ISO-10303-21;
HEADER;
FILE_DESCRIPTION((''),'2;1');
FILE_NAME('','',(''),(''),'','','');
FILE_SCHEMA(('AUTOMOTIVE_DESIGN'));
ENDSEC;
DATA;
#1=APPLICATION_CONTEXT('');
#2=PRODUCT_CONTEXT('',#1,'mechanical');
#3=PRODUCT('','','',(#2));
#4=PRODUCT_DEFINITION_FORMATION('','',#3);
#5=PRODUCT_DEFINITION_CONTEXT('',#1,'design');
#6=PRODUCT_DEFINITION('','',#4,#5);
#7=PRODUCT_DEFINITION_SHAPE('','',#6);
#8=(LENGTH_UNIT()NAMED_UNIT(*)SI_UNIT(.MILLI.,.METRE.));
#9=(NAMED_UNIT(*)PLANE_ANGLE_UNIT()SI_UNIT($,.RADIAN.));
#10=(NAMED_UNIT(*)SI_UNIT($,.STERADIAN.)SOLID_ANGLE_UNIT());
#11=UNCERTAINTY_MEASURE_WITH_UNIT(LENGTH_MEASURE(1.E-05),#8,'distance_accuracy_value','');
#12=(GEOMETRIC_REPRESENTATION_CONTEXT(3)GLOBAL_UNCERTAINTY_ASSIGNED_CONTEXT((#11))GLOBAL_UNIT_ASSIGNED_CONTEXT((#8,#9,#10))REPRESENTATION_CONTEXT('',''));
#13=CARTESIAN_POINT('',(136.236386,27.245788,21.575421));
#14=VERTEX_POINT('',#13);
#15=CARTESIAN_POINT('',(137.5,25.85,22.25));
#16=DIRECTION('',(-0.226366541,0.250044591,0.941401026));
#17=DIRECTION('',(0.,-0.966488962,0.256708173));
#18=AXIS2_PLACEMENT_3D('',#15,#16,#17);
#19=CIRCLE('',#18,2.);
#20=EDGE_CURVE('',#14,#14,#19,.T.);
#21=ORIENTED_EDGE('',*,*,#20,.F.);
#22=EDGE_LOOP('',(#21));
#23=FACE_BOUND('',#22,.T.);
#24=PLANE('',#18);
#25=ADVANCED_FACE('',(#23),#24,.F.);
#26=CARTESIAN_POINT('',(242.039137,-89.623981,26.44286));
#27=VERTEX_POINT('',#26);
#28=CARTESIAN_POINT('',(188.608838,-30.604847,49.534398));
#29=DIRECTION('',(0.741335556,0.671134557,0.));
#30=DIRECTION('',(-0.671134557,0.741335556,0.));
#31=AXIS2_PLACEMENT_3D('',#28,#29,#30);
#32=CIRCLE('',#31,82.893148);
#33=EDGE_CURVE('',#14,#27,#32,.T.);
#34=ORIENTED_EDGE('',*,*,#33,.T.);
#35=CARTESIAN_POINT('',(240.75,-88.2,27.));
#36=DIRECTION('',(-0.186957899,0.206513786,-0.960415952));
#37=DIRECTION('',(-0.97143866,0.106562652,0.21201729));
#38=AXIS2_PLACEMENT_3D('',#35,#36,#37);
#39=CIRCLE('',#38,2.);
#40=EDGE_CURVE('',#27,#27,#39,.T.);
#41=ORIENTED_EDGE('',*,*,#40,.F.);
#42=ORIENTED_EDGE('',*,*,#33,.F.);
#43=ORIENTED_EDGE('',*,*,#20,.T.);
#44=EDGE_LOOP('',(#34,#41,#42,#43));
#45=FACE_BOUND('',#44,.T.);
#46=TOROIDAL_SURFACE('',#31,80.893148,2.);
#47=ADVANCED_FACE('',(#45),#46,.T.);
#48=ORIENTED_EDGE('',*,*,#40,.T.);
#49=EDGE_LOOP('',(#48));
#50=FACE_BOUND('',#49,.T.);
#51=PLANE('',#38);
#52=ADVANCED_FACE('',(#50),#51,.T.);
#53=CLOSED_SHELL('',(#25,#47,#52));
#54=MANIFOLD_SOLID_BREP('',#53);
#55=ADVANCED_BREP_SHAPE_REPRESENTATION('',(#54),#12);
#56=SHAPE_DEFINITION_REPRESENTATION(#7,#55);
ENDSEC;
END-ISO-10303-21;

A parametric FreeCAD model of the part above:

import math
import FreeCAD as App
import Part
import Sketcher

doc = App.newDocument("Part")
body = doc.addObject("PartDesign::Body", "Body")

sketch1 = doc.addObject("Sketcher::SketchObject", "Sketch")
body.addObject(sketch1)
sketch1.Placement = App.Placement(App.Vector(137.5, 25.85, 22.25), App.Rotation(App.Vector(0, 0.966488962, -0.256708173), App.Vector(-0.974042191, -0.058110141, -0.218780763), App.Vector(-0.226366541, 0.250044591, 0.941401026), "ZXY"))
sketch1.addGeometry(Part.Circle(App.Vector(0, 0, 0), App.Vector(0, 0, 1), 2), False)
sketch1.addConstraint([
    Sketcher.Constraint("Coincident", 0, 3, -1, 1),
    Sketcher.Constraint("Diameter", 0, 4.0),
])

sketch2 = doc.addObject("Sketcher::SketchObject", "Sketch001")
body.addObject(sketch2)
sketch2.Placement = App.Placement(App.Vector(88.428334, 80.054586, 0), App.Rotation(App.Vector(-0.671134557, 0.741335556, 0), App.Vector(0, 0, 1), App.Vector(0.741335556, 0.671134557, 0), "ZXY"))
sketch2.addGeometry(Part.ArcOfCircle(Part.Circle(App.Vector(-149, 50, 0), App.Vector(0, 0, 1), 81), math.radians(-20), math.radians(196)), False)
sketch2.addConstraint([
    Sketcher.Constraint("DistanceY", -1, 1, 0, 2, 27.0),
    Sketcher.Constraint("DistanceY", -1, 1, 0, 1, 22.25),
    Sketcher.Constraint("Radius", 0, 80.893148),
    Sketcher.Constraint("DistanceX", 0, 3, -1, 1, 149.27037),
    Sketcher.Constraint("DistanceX", 0, 2, -1, 1, 226.961441),
])
doc.recompute()

additivepipe = doc.addObject("PartDesign::AdditivePipe", "AdditivePipe")
body.addObject(additivepipe)
additivepipe.Profile = sketch1
additivepipe.Spine = (sketch2, ["Edge1"])

doc.recompute()
